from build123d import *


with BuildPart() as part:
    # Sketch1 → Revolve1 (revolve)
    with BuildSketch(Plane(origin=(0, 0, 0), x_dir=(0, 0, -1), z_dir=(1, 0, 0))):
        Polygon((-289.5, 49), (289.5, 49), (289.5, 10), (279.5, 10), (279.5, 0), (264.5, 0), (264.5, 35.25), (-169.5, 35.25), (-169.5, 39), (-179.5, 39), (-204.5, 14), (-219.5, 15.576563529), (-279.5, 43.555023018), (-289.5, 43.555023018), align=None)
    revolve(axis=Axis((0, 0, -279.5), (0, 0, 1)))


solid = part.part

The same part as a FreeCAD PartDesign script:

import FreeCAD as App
import Part
import Sketcher
from FreeCAD import Vector
Q = App.Units.Quantity

doc = App.newDocument("Part")
params = doc.addObject("Spreadsheet::Sheet", "Params")
for row, (alias, value) in enumerate([
    ("sketch1_width", "10 mm"),
    ("sketch1_width2", "39 mm"),
    ("sketch1_height", "579 mm"),
    ("sketch1_height2", "434 mm"),
    ("sketch1_height3", "15 mm"),
    ("revolution_angle", "360 deg"),
], start=1):
    params.set(f"A{row}", alias)
    params.set(f"B{row}", "=" + value)
    params.setAlias(f"B{row}", alias)

body = doc.addObject("PartDesign::Body", "Body")

sketch1 = body.newObject("Sketcher::SketchObject", "Sketch")
sketch1.AttachmentSupport = (doc.getObject("YZ_Plane"), [""])
sketch1.MapMode = "FlatFace"
sketch1.addGeometry([
    Part.LineSegment(Vector(49, -289.5, 0), Vector(49, 289.5, 0)),
    Part.LineSegment(Vector(49, 289.5, 0), Vector(43.555023, 289.5, 0)),
    Part.LineSegment(Vector(43.555023, 289.5, 0), Vector(43.555023, 279.5, 0)),
    Part.LineSegment(Vector(43.555023, 279.5, 0), Vector(15.576564, 219.5, 0)),
    Part.LineSegment(Vector(15.576564, 219.5, 0), Vector(14, 204.5, 0)),
    Part.LineSegment(Vector(14, 204.5, 0), Vector(39, 179.5, 0)),
    Part.LineSegment(Vector(39, 179.5, 0), Vector(39, 169.5, 0)),
    Part.LineSegment(Vector(39, 169.5, 0), Vector(35.25, 169.5, 0)),
    Part.LineSegment(Vector(35.25, 169.5, 0), Vector(35.25, -264.5, 0)),
    Part.LineSegment(Vector(35.25, -264.5, 0), Vector(0, -264.5, 0)),
    Part.LineSegment(Vector(0, -264.5, 0), Vector(0, -279.5, 0)),
    Part.LineSegment(Vector(0, -279.5, 0), Vector(10, -279.5, 0)),
    Part.LineSegment(Vector(10, -279.5, 0), Vector(10, -289.5, 0)),
    Part.LineSegment(Vector(10, -289.5, 0), Vector(49, -289.5, 0)),
], False)
sketch1.addConstraint([
    Sketcher.Constraint("Coincident", 0, 2, 1, 1),
    Sketcher.Constraint("Coincident", 1, 2, 2, 1),
    Sketcher.Constraint("Coincident", 2, 2, 3, 1),
    Sketcher.Constraint("Coincident", 3, 2, 4, 1),
    Sketcher.Constraint("Coincident", 4, 2, 5, 1),
    Sketcher.Constraint("Coincident", 5, 2, 6, 1),
    Sketcher.Constraint("Coincident", 6, 2, 7, 1),
    Sketcher.Constraint("Coincident", 7, 2, 8, 1),
    Sketcher.Constraint("Coincident", 8, 2, 9, 1),
    Sketcher.Constraint("Coincident", 9, 2, 10, 1),
    Sketcher.Constraint("Coincident", 10, 2, 11, 1),
    Sketcher.Constraint("Coincident", 11, 2, 12, 1),
    Sketcher.Constraint("Coincident", 12, 2, 13, 1),
    Sketcher.Constraint("Coincident", 13, 2, 0, 1),
    Sketcher.Constraint("Vertical", 0),
    Sketcher.Constraint("Horizontal", 1),
    Sketcher.Constraint("Vertical", 2),
    Sketcher.Constraint("Vertical", 6),
    Sketcher.Constraint("Horizontal", 7),
    Sketcher.Constraint("Vertical", 8),
    Sketcher.Constraint("Horizontal", 9),
    Sketcher.Constraint("Vertical", 10),
    Sketcher.Constraint("Horizontal", 11),
    Sketcher.Constraint("Vertical", 12),
    Sketcher.Constraint("Horizontal", 13),
    Sketcher.Constraint("PointOnObject", 9, 2, -2),
    Sketcher.Constraint("Equal", 11, 2),
    Sketcher.Constraint("Equal", 2, 6),
    Sketcher.Constraint("Equal", 6, 12),
    Sketcher.Constraint("DistanceX", 11, 1, 11, 2, 10.0),
    Sketcher.Constraint("DistanceX", 13, 1, 13, 2, 39.0),
    Sketcher.Constraint("DistanceY", 0, 1, 0, 2, 579.0),
    Sketcher.Constraint("DistanceY", 8, 2, 8, 1, 434.0),
    Sketcher.Constraint("DistanceY", 10, 2, 10, 1, 15.0),
    Sketcher.Constraint("Angle", 3, Q("-115 deg")),
    Sketcher.Constraint("Angle", 4, Q("-96 deg")),
    Sketcher.Constraint("Angle", 5, Q("-45 deg")),
    Sketcher.Constraint("DistanceX", -1, 1, 4, 2, 14.0),
    Sketcher.Constraint("DistanceX", -1, 1, 5, 2, 39.0),
    Sketcher.Constraint("DistanceY", 3, 2, 2, 2, 60.0),
    Sketcher.Constraint("DistanceX", 7, 2, 7, 1, 3.75),
    Sketcher.Constraint("DistanceY", -1, 1, 0, 2, 289.5),
])
sketch1.setExpression("Constraints[29]", "Params.sketch1_width")
sketch1.setExpression("Constraints[30]", "Params.sketch1_width2")
sketch1.setExpression("Constraints[31]", "Params.sketch1_height")
sketch1.setExpression("Constraints[32]", "Params.sketch1_height2")
sketch1.setExpression("Constraints[33]", "Params.sketch1_height3")
revolution = body.newObject("PartDesign::Revolution", "Revolution")
revolution.Profile = sketch1
revolution.ReferenceAxis = (sketch1, ["V_Axis"])
revolution.setExpression("Angle", "Params.revolution_angle")

doc.recompute()
